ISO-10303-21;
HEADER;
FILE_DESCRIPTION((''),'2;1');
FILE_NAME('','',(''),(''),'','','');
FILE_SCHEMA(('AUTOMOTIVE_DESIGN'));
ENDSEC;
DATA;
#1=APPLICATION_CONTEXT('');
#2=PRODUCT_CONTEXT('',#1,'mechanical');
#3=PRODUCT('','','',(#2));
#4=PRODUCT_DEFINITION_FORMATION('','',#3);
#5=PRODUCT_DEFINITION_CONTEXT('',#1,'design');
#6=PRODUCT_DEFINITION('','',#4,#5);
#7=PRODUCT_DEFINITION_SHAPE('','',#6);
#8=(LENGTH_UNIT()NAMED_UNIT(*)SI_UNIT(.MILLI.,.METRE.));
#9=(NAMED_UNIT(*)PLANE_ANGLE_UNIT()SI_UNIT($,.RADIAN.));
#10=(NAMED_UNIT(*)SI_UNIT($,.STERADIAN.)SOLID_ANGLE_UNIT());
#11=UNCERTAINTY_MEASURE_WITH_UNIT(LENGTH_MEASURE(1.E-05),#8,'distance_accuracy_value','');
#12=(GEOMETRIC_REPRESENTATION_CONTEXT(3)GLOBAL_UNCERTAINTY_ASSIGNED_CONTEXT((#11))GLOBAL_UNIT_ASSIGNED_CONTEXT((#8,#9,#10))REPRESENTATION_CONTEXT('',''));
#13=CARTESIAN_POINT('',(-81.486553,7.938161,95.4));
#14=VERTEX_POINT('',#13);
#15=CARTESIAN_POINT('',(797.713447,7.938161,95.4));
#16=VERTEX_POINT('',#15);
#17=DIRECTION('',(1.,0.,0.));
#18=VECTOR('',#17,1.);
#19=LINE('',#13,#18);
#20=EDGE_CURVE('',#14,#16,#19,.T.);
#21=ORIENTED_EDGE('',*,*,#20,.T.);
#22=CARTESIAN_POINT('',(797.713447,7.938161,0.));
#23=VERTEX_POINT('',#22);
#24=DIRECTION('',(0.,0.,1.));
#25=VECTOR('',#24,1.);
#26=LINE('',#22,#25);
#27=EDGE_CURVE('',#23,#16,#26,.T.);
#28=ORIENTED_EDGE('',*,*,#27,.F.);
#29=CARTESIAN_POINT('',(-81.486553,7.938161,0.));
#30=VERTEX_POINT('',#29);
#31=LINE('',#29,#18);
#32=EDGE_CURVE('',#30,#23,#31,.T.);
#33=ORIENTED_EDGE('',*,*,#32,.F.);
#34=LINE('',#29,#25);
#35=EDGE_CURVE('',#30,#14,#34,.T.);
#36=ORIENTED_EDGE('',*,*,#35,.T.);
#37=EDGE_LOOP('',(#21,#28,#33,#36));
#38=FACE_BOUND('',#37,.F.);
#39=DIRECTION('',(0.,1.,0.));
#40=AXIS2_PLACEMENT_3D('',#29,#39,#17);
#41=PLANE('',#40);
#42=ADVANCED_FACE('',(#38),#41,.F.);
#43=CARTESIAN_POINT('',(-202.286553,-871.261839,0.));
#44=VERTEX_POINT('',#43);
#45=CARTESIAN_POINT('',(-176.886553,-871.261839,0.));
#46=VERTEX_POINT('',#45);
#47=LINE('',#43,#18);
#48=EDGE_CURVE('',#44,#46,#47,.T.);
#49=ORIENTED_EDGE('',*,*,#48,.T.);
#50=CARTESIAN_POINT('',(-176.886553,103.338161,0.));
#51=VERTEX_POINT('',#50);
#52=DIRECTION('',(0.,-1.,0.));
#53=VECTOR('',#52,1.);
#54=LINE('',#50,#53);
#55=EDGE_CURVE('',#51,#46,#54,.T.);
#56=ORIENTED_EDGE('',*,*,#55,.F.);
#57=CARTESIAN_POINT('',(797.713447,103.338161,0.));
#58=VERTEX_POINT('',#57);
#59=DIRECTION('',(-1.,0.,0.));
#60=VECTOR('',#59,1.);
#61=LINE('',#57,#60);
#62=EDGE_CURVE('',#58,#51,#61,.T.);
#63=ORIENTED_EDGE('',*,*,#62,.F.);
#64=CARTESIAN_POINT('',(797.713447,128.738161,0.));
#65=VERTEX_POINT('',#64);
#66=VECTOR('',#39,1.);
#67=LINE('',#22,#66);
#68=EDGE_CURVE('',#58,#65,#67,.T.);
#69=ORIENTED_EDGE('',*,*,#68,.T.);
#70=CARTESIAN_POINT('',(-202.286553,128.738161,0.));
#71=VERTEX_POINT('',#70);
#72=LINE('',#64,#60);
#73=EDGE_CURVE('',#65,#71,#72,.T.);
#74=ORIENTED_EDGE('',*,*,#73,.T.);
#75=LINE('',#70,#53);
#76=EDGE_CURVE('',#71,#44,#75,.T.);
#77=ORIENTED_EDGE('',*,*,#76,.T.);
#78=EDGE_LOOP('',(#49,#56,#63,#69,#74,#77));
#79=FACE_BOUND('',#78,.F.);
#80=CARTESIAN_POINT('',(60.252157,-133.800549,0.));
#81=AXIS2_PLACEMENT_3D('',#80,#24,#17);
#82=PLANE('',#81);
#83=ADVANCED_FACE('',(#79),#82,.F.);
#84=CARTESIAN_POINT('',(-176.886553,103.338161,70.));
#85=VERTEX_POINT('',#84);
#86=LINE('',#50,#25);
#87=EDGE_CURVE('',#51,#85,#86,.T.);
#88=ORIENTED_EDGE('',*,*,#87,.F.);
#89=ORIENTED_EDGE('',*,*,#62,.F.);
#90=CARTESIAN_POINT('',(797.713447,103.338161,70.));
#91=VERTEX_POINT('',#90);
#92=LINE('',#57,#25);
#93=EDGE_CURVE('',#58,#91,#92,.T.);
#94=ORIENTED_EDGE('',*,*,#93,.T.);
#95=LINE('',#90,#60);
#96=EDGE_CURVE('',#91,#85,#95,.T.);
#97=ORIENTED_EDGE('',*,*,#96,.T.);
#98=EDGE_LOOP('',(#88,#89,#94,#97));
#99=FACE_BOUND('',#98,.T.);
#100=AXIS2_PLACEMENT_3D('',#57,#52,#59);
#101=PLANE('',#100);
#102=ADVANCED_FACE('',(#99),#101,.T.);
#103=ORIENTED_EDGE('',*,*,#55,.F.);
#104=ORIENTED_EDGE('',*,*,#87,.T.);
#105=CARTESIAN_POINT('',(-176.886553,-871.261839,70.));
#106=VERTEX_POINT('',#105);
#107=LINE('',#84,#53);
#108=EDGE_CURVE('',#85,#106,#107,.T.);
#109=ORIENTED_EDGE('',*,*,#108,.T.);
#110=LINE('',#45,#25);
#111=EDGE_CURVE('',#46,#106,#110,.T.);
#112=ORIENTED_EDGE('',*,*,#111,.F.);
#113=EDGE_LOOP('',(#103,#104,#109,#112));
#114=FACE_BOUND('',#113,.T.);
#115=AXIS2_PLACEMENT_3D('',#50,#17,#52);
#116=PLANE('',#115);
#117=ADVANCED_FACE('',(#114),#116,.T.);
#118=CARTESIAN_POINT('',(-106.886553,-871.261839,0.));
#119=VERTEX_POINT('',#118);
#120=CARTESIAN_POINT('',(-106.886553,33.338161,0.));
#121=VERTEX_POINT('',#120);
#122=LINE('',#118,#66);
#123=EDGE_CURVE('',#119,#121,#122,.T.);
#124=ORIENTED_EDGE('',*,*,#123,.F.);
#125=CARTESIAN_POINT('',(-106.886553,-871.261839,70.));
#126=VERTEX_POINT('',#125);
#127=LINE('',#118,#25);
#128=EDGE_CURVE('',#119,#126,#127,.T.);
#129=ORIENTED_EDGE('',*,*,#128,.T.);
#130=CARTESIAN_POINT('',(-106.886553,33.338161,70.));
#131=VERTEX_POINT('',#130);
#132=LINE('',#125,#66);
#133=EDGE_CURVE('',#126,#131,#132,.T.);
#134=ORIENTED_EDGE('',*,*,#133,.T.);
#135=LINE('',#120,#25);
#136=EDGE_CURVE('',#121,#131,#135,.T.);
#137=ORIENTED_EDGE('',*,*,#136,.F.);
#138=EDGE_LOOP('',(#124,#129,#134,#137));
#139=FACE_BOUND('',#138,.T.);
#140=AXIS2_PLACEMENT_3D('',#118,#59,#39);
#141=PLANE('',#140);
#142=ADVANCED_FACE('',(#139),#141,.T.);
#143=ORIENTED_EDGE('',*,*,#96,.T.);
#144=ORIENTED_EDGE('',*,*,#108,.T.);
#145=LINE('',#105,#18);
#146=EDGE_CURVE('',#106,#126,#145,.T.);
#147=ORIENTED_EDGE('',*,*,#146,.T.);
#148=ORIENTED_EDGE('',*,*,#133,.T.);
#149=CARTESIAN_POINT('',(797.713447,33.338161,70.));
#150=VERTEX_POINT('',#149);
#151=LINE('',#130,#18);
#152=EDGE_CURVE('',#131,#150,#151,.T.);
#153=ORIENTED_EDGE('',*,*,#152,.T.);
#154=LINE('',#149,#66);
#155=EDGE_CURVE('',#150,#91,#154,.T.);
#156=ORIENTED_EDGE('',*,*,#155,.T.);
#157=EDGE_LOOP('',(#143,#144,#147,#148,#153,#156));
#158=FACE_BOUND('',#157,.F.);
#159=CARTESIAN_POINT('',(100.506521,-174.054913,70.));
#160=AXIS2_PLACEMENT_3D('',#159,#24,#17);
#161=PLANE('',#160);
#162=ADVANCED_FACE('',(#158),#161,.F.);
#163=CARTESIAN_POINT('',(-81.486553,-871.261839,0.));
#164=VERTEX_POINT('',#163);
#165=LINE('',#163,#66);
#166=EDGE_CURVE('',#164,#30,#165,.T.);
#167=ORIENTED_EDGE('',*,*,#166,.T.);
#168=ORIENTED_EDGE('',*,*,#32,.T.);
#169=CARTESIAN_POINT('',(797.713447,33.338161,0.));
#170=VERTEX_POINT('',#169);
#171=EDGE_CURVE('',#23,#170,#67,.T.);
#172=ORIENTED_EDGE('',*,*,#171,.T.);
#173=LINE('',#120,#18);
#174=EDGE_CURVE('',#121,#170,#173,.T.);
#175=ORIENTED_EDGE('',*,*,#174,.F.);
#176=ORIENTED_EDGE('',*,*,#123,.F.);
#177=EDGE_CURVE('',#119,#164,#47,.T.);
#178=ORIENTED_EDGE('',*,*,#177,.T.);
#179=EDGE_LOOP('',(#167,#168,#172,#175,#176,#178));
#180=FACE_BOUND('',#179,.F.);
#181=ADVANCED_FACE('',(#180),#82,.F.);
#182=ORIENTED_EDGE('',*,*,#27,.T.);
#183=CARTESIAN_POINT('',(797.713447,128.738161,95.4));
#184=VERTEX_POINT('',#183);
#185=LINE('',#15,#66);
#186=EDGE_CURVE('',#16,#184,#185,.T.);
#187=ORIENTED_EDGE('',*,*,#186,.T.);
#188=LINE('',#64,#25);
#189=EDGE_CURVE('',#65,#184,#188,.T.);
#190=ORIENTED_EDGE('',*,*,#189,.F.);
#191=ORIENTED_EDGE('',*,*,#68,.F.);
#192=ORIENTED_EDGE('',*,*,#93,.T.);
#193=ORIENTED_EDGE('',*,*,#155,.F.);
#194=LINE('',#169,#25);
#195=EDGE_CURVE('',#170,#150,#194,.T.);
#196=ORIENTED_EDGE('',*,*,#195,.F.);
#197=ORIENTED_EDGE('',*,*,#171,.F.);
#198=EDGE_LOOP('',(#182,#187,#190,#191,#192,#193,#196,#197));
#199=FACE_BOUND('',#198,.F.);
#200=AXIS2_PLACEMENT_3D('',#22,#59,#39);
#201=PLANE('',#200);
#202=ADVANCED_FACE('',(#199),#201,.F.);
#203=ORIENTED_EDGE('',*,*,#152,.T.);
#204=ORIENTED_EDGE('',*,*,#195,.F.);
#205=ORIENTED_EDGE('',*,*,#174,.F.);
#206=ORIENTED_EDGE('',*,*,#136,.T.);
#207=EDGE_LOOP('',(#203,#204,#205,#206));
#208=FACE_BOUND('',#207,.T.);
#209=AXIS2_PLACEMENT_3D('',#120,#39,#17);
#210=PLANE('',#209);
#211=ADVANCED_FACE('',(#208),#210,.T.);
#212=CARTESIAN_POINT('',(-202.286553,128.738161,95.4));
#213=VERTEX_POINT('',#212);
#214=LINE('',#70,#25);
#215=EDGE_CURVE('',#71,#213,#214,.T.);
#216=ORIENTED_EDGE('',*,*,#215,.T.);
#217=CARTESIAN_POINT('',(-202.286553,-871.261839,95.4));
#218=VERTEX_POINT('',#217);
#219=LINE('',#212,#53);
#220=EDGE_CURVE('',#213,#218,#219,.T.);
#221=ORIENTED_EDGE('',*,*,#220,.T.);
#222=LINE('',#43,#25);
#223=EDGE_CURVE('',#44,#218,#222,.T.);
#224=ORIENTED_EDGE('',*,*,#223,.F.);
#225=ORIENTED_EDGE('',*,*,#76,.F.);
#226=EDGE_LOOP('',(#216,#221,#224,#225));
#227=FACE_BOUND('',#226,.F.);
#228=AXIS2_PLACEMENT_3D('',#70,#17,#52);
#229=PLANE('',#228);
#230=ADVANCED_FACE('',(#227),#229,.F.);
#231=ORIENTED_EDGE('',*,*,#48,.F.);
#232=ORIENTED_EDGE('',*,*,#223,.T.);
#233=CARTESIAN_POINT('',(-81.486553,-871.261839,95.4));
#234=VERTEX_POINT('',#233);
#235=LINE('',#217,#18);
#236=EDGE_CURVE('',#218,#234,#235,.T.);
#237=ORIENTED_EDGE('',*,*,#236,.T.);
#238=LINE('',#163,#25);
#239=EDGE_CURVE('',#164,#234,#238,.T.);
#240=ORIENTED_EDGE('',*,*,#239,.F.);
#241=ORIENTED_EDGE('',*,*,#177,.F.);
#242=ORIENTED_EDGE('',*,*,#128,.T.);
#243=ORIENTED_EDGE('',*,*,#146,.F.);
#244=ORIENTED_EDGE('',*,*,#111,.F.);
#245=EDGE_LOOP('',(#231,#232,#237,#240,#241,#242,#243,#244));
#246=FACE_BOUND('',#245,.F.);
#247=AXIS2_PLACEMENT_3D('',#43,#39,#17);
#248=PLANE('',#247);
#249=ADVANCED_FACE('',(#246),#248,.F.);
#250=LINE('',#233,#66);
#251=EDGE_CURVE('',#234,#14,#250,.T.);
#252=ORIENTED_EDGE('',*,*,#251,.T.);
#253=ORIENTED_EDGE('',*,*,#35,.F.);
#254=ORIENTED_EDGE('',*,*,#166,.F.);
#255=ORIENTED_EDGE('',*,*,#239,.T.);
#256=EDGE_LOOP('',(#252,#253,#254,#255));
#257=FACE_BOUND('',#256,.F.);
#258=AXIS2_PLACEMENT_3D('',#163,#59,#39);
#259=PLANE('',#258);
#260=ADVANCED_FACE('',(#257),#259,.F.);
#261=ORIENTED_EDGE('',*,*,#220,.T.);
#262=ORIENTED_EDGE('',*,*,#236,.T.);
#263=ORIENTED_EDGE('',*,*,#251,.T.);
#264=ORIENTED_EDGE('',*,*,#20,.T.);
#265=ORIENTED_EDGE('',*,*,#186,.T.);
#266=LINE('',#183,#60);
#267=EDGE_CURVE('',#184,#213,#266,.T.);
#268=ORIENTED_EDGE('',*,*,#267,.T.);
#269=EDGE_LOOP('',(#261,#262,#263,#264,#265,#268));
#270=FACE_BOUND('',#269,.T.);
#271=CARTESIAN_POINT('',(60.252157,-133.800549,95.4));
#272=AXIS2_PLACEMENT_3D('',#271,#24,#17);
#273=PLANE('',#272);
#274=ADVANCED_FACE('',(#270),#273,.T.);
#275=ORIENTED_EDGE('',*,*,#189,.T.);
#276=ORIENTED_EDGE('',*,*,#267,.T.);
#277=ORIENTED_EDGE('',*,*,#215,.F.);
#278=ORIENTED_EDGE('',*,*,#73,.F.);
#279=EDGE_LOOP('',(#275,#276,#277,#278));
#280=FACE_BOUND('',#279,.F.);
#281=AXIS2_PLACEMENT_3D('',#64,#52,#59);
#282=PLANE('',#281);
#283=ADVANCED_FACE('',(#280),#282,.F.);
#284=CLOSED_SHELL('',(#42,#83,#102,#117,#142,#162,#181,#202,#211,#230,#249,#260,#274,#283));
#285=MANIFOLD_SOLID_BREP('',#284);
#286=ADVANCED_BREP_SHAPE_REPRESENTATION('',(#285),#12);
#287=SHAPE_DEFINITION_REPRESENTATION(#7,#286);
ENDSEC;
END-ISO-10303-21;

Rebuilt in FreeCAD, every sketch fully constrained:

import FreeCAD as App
import Part
import Sketcher
from FreeCAD import Vector


def add_polygon(sketch, points):
    """Adds a closed chain of lines whose ends are joined by coincident constraints."""
    first, n = sketch.GeometryCount, len(points)
    for a, b in zip(points, points[1:] + points[:1]):
        sketch.addGeometry(Part.LineSegment(App.Vector(*a, 0), App.Vector(*b, 0)), False)
    for i in range(n):
        sketch.addConstraint(Sketcher.Constraint("Coincident", first + i, 2, first + (i + 1) % n, 1))

doc = App.newDocument("Part")
body = doc.addObject("PartDesign::Body", "Body")

sketch1 = doc.addObject("Sketcher::SketchObject", "Sketch")
body.addObject(sketch1)
sketch1.AttachmentSupport = (doc.XY_Plane, [""])
sketch1.MapMode = "FlatFace"
add_polygon(sketch1, [(797.713447, 128.738161), (-202.286553, 128.738161), (-202.286553, -871.261839), (-81.486553, -871.261839), (-81.486553, 7.938161), (797.713447, 7.938161)])
sketch1.addConstraint([
    Sketcher.Constraint("Horizontal", 0),
    Sketcher.Constraint("Vertical", 1),
    Sketcher.Constraint("Horizontal", 2),
    Sketcher.Constraint("Vertical", 3),
    Sketcher.Constraint("Horizontal", 4),
    Sketcher.Constraint("Vertical", 5),
    Sketcher.Constraint("Equal", 0, 1),
    Sketcher.Constraint("Equal", 4, 3),
    Sketcher.Constraint("DistanceX", 0, 2, 0, 1, 1000.0),
    Sketcher.Constraint("DistanceX", 2, 1, 2, 2, 120.8),
    Sketcher.Constraint("DistanceY", -1, 1, 0, 2, 128.738161),
    Sketcher.Constraint("DistanceX", 0, 2, -1, 1, 202.286553),
])
pad1 = doc.addObject("PartDesign::Pad", "Pad")
body.addObject(pad1)
pad1.Profile = sketch1
pad1.Length = 95.4

sketch2 = doc.addObject("Sketcher::SketchObject", "Sketch001")
body.addObject(sketch2)
sketch2.AttachmentSupport = (doc.XY_Plane, [""])
sketch2.MapMode = "FlatFace"
add_polygon(sketch2, [(-176.886553, 103.338161), (-176.886553, -871.261839), (-106.886553, -871.261839), (-106.886553, 33.338161), (797.713447, 33.338161), (797.713447, 103.338161)])
sketch2.addConstraint([
    Sketcher.Constraint("Vertical", 0),
    Sketcher.Constraint("Horizontal", 1),
    Sketcher.Constraint("Vertical", 2),
    Sketcher.Constraint("Horizontal", 3),
    Sketcher.Constraint("Vertical", 4),
    Sketcher.Constraint("Horizontal", 5),
    Sketcher.Constraint("Equal", 5, 0),
    Sketcher.Constraint("Equal", 3, 2),
    Sketcher.Constraint("DistanceX", 1, 1, 1, 2, 70.0),
    Sketcher.Constraint("DistanceX", 3, 1, 3, 2, 904.6),
    Sketcher.Constraint("DistanceY", 0, 2, -1, 1, 871.261839),
    Sketcher.Constraint("DistanceX", 0, 2, -1, 1, 176.886553),
])
pocket1 = doc.addObject("PartDesign::Pocket", "Pocket")
body.addObject(pocket1)
pocket1.Profile = sketch2
pocket1.Length = 70
pocket1.Reversed = True

doc.recompute()
